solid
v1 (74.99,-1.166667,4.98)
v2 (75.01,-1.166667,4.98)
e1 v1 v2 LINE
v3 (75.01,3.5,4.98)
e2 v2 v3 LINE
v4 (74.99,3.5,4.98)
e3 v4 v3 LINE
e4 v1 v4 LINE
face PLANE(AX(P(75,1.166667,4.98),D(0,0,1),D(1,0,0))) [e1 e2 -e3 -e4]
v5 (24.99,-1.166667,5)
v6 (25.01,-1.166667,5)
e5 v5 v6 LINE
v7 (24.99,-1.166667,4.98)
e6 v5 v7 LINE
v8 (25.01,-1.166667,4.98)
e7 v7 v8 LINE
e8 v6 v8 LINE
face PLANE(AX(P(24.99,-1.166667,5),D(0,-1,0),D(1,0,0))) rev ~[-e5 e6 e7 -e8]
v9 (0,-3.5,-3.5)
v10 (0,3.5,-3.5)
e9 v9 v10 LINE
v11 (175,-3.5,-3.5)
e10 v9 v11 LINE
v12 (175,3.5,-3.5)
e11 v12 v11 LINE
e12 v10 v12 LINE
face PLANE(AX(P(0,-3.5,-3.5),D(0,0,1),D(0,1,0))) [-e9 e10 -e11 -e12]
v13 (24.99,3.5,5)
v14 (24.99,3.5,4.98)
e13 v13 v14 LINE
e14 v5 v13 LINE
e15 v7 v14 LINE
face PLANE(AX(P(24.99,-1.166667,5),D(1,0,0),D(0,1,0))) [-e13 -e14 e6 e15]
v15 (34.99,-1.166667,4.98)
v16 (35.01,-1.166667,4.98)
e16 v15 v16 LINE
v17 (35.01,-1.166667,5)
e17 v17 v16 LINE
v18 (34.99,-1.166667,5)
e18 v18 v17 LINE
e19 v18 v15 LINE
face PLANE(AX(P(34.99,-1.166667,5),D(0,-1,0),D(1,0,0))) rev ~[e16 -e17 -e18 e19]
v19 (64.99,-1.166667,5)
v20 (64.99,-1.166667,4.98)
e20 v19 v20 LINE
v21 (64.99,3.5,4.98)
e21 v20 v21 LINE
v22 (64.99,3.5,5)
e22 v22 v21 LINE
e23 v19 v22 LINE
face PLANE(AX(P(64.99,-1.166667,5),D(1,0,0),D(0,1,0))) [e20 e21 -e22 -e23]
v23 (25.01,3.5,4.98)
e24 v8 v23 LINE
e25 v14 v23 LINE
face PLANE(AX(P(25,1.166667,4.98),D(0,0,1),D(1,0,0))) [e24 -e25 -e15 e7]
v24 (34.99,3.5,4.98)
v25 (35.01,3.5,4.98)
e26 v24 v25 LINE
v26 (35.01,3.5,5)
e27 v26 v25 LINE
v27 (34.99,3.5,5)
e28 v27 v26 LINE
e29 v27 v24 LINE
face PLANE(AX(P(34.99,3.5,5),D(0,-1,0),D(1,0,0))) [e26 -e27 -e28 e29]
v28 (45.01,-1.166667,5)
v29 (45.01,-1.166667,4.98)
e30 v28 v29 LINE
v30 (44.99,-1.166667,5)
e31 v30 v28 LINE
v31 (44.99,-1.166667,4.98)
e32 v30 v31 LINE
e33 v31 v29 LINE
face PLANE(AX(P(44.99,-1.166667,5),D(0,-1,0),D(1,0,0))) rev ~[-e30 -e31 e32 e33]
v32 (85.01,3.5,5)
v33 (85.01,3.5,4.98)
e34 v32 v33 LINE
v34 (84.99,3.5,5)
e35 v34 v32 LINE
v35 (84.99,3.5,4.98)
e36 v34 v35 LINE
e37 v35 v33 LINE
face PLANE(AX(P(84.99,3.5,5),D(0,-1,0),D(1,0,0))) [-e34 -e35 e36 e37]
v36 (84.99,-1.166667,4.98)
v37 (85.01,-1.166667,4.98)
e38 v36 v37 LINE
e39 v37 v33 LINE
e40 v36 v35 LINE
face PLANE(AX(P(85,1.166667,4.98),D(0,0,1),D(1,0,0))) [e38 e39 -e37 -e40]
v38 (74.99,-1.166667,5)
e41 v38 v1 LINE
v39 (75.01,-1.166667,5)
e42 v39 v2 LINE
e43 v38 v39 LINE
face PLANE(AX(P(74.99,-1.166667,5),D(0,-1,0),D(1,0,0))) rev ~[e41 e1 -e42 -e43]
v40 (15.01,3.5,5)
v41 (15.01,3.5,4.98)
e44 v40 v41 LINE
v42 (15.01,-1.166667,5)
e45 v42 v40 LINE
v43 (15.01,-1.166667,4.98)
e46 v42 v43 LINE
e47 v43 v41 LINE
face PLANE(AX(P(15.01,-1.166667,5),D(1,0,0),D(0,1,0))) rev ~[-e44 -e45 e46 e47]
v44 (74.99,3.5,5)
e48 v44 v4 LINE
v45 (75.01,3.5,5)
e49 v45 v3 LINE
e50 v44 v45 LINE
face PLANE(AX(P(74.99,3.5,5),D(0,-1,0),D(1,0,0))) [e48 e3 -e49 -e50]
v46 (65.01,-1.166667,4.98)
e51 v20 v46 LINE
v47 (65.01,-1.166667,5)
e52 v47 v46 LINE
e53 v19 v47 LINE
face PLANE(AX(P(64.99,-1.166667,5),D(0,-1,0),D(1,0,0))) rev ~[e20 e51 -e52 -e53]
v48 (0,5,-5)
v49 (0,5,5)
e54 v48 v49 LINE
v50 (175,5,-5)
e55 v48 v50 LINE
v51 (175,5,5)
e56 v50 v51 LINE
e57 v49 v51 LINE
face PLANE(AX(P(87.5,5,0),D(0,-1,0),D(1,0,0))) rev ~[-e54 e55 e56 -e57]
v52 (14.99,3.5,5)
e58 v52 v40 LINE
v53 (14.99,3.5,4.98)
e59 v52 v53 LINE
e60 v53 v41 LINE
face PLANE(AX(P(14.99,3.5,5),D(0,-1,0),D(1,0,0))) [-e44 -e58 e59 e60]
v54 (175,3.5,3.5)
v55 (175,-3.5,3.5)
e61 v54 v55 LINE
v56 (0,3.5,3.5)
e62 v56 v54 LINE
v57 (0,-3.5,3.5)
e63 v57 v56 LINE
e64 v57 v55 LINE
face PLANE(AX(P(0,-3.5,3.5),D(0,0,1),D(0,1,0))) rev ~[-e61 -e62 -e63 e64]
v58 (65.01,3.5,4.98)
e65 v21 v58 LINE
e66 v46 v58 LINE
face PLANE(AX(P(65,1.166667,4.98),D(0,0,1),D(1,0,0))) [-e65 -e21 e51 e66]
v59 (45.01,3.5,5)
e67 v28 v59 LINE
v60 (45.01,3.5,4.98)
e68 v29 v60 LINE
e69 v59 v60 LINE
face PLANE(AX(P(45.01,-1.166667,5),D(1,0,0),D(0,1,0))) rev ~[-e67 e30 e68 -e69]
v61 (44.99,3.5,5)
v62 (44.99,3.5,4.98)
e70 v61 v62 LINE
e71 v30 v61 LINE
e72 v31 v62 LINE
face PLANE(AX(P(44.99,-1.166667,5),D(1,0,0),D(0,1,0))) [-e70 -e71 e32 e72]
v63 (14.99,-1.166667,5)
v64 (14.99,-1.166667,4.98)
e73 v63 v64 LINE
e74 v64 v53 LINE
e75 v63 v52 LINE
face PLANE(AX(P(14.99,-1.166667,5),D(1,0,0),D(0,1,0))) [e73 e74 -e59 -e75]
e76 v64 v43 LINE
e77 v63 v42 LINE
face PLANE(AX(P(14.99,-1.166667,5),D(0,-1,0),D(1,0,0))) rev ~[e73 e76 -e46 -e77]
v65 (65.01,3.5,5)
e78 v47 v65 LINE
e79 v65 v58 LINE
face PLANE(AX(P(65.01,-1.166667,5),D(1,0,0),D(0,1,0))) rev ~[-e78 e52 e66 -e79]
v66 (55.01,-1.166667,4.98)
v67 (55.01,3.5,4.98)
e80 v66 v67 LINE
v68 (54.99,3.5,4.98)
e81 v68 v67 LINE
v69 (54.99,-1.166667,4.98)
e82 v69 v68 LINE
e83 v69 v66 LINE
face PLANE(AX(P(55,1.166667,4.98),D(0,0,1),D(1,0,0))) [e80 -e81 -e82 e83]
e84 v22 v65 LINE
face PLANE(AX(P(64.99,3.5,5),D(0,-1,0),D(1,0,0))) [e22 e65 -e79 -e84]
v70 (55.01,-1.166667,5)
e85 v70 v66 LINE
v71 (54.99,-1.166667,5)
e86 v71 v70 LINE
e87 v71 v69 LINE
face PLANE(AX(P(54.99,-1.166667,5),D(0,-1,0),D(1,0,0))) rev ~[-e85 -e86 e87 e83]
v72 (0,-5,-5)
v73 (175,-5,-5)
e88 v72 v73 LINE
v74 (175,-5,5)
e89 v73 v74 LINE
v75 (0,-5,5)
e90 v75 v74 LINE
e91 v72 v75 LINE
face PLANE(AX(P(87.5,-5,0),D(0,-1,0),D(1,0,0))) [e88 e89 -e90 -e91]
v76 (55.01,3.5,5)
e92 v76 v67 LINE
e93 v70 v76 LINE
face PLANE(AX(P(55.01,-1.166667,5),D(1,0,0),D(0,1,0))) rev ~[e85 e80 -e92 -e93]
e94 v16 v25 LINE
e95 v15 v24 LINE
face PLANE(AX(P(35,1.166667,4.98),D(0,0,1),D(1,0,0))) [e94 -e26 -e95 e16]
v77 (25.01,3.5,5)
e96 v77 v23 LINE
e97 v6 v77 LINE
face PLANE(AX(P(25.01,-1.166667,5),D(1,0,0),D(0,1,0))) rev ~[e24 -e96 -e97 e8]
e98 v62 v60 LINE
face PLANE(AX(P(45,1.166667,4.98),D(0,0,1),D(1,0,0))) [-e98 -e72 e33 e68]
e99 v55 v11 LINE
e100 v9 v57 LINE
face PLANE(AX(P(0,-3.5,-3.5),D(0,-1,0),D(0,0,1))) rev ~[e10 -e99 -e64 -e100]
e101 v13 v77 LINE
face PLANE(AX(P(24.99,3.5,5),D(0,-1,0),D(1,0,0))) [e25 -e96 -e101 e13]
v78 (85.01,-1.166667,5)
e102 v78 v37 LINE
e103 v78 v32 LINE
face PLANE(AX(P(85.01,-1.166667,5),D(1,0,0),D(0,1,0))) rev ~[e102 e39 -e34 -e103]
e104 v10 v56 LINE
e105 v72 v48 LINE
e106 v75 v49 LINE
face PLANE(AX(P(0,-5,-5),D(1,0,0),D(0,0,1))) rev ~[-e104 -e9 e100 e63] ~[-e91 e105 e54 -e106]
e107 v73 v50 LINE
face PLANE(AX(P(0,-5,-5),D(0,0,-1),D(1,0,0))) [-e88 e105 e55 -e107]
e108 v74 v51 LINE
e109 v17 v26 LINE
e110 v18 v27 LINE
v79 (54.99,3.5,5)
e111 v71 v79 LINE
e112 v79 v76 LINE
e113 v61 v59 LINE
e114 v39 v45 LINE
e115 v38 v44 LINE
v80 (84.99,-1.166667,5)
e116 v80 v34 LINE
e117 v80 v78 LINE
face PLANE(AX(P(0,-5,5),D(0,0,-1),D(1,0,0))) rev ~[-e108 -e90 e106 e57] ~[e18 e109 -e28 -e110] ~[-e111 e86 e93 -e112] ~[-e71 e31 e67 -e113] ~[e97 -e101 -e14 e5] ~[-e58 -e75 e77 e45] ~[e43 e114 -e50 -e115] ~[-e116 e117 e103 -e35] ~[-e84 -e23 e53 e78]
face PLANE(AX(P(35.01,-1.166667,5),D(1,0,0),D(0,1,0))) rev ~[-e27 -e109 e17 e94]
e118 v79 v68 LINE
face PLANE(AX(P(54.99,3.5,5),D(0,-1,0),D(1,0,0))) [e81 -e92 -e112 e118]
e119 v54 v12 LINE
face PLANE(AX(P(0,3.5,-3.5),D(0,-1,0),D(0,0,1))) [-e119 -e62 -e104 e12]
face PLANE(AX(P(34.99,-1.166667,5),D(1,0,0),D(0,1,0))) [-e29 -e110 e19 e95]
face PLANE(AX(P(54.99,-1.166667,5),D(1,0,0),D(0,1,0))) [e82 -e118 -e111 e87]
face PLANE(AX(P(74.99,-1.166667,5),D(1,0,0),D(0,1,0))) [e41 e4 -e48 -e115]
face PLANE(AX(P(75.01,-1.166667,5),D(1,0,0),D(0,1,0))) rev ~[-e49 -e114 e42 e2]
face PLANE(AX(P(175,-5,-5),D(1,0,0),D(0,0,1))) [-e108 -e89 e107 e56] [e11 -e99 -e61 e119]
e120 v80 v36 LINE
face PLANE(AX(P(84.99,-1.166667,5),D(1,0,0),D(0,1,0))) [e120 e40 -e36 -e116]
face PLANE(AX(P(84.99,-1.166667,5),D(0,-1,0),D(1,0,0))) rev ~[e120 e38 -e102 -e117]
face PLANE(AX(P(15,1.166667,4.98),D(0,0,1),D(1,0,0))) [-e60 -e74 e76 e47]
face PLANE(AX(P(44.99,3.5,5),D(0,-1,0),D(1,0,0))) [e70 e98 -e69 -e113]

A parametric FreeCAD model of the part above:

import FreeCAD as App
import Part
import Sketcher
from FreeCAD import Vector


def add_polygon(sketch, points):
    """Adds a closed chain of lines whose ends are joined by coincident constraints."""
    first, n = sketch.GeometryCount, len(points)
    for a, b in zip(points, points[1:] + points[:1]):
        sketch.addGeometry(Part.LineSegment(App.Vector(*a, 0), App.Vector(*b, 0)), False)
    for i in range(n):
        sketch.addConstraint(Sketcher.Constraint("Coincident", first + i, 2, first + (i + 1) % n, 1))

doc = App.newDocument("Part")
params = doc.addObject("Spreadsheet::Sheet", "Params")
for row, (alias, value) in enumerate([
    ("sketch1_width", "175 mm"),
    ("sketch1_height", "10 mm"),
    ("pad1_length", "10 mm"),
    ("sketch2_width", "7 mm"),
    ("sketch3_width", "0.02 mm"),
    ("pocket2_length", "0.02 mm"),
    ("sketch4_width", "0.02 mm"),
    ("pocket3_length", "0.02 mm"),
    ("sketch5_width", "0.02 mm"),
    ("pocket4_length", "0.02 mm"),
    ("sketch6_width", "0.02 mm"),
    ("pocket5_length", "0.02 mm"),
    ("sketch7_width", "0.02 mm"),
    ("pocket6_length", "0.02 mm"),
    ("sketch8_width", "0.02 mm"),
    ("pocket7_length", "0.02 mm"),
    ("sketch9_width", "0.02 mm"),
    ("pocket8_length", "0.02 mm"),
    ("sketch10_width", "0.02 mm"),
    ("pocket9_length", "0.02 mm"),
], start=1):
    params.set(f"A{row}", alias)
    params.set(f"B{row}", "=" + value)
    params.setAlias(f"B{row}", alias)

body = doc.addObject("PartDesign::Body", "Body")

sketch1 = doc.addObject("Sketcher::SketchObject", "Sketch")
body.addObject(sketch1)
sketch1.AttachmentSupport = (doc.XZ_Plane, [""])
sketch1.MapMode = "FlatFace"
sketch1.AttachmentOffset = App.Placement(Vector(0, 0, 5), App.Rotation())
add_polygon(sketch1, [(0, 5), (0, -5), (175, -5), (175, 5)])
sketch1.addConstraint([
    Sketcher.Constraint("Vertical", 0),
    Sketcher.Constraint("Horizontal", 1),
    Sketcher.Constraint("Vertical", 2),
    Sketcher.Constraint("Horizontal", 3),
    Sketcher.Constraint("Symmetric", 0, 2, 3, 2, -1, 1),
    Sketcher.Constraint("DistanceX", 1, 1, 1, 2, 175.0),
    Sketcher.Constraint("DistanceY", 0, 2, 0, 1, 10.0),
])
sketch1.setExpression("Constraints[9]", "Params.sketch1_width")
sketch1.setExpression("Constraints[10]", "Params.sketch1_height")
pad1 = doc.addObject("PartDesign::Pad", "Pad")
body.addObject(pad1)
pad1.Profile = sketch1
pad1.setExpression("Length", "Params.pad1_length")
pad1.Reversed = True

sketch2 = doc.addObject("Sketcher::SketchObject", "Sketch001")
body.addObject(sketch2)
sketch2.AttachmentSupport = (doc.YZ_Plane, [""])
sketch2.MapMode = "FlatFace"
add_polygon(sketch2, [(4, -4), (-4, -4), (-4, 4), (4, 4)])
sketch2.addConstraint([
    Sketcher.Constraint("Horizontal", 0),
    Sketcher.Constraint("Vertical", 1),
    Sketcher.Constraint("Horizontal", 2),
    Sketcher.Constraint("Vertical", 3),
    Sketcher.Constraint("Symmetric", 0, 2, 2, 2, -1, 1),
    Sketcher.Constraint("Equal", 2, 1),
    Sketcher.Constraint("DistanceX", 0, 2, 0, 1, 7.0),
])
sketch2.setExpression("Constraints[10]", "Params.sketch2_width")
pocket1 = doc.addObject("PartDesign::Pocket", "Pocket")
body.addObject(pocket1)
pocket1.Profile = sketch2
pocket1.Type = "ThroughAll"
pocket1.Reversed = True

sketch3 = doc.addObject("Sketcher::SketchObject", "Sketch002")
body.addObject(sketch3)
sketch3.AttachmentSupport = (doc.XY_Plane, [""])
sketch3.MapMode = "FlatFace"
sketch3.AttachmentOffset = App.Placement(Vector(0, 0, 5), App.Rotation())
add_polygon(sketch3, [(24.99, 3.5), (24.99, -1.167), (25.01, -1.167), (25.01, 3.5)])
sketch3.addConstraint([
    Sketcher.Constraint("Vertical", 0),
    Sketcher.Constraint("Horizontal", 1),
    Sketcher.Constraint("Vertical", 2),
    Sketcher.Constraint("Horizontal", 3),
    Sketcher.Constraint("DistanceX", 1, 1, 1, 2, 0.02),
    Sketcher.Constraint("DistanceY", -1, 1, 2, 2, 3.5),
    Sketcher.Constraint("DistanceX", -1, 1, 0, 2, 24.99),
    Sketcher.Constraint("DistanceY", 0, 2, 0, 1, 4.666667),
])
sketch3.setExpression("Constraints[8]", "Params.sketch3_width")
pocket2 = doc.addObject("PartDesign::Pocket", "Pocket001")
body.addObject(pocket2)
pocket2.Profile = sketch3
pocket2.setExpression("Length", "Params.pocket2_length")

sketch4 = doc.addObject("Sketcher::SketchObject", "Sketch003")
body.addObject(sketch4)
sketch4.AttachmentSupport = (doc.XY_Plane, [""])
sketch4.MapMode = "FlatFace"
sketch4.AttachmentOffset = App.Placement(Vector(0, 0, 5), App.Rotation())
add_polygon(sketch4, [(34.99, 3.5), (34.99, -1.167), (35.01, -1.167), (35.01, 3.5)])
sketch4.addConstraint([
    Sketcher.Constraint("Vertical", 0),
    Sketcher.Constraint("Horizontal", 1),
    Sketcher.Constraint("Vertical", 2),
    Sketcher.Constraint("Horizontal", 3),
    Sketcher.Constraint("DistanceX", 1, 1, 1, 2, 0.02),
    Sketcher.Constraint("DistanceY", -1, 1, 2, 2, 3.5),
    Sketcher.Constraint("DistanceX", -1, 1, 0, 2, 34.99),
    Sketcher.Constraint("DistanceY", 0, 2, 0, 1, 4.666667),
])
sketch4.setExpression("Constraints[8]", "Params.sketch4_width")
pocket3 = doc.addObject("PartDesign::Pocket", "Pocket002")
body.addObject(pocket3)
pocket3.Profile = sketch4
pocket3.setExpression("Length", "Params.pocket3_length")

sketch5 = doc.addObject("Sketcher::SketchObject", "Sketch004")
body.addObject(sketch5)
sketch5.AttachmentSupport = (doc.XY_Plane, [""])
sketch5.MapMode = "FlatFace"
sketch5.AttachmentOffset = App.Placement(Vector(0, 0, 5), App.Rotation())
add_polygon(sketch5, [(44.99, 3.5), (44.99, -1.167), (45.01, -1.167), (45.01, 3.5)])
sketch5.addConstraint([
    Sketcher.Constraint("Vertical", 0),
    Sketcher.Constraint("Horizontal", 1),
    Sketcher.Constraint("Vertical", 2),
    Sketcher.Constraint("Horizontal", 3),
    Sketcher.Constraint("DistanceX", 1, 1, 1, 2, 0.02),
    Sketcher.Constraint("DistanceY", -1, 1, 2, 2, 3.5),
    Sketcher.Constraint("DistanceX", -1, 1, 0, 2, 44.99),
    Sketcher.Constraint("DistanceY", 0, 2, 0, 1, 4.666667),
])
sketch5.setExpression("Constraints[8]", "Params.sketch5_width")
pocket4 = doc.addObject("PartDesign::Pocket", "Pocket003")
body.addObject(pocket4)
pocket4.Profile = sketch5
pocket4.setExpression("Length", "Params.pocket4_length")

sketch6 = doc.addObject("Sketcher::SketchObject", "Sketch005")
body.addObject(sketch6)
sketch6.AttachmentSupport = (doc.XY_Plane, [""])
sketch6.MapMode = "FlatFace"
sketch6.AttachmentOffset = App.Placement(Vector(0, 0, 5), App.Rotation())
add_polygon(sketch6, [(54.99, 3.5), (54.99, -1.167), (55.01, -1.167), (55.01, 3.5)])
sketch6.addConstraint([
    Sketcher.Constraint("Vertical", 0),
    Sketcher.Constraint("Horizontal", 1),
    Sketcher.Constraint("Vertical", 2),
    Sketcher.Constraint("Horizontal", 3),
    Sketcher.Constraint("DistanceX", 1, 1, 1, 2, 0.02),
    Sketcher.Constraint("DistanceY", -1, 1, 2, 2, 3.5),
    Sketcher.Constraint("DistanceX", -1, 1, 0, 2, 54.99),
    Sketcher.Constraint("DistanceY", 0, 2, 0, 1, 4.666667),
])
sketch6.setExpression("Constraints[8]", "Params.sketch6_width")
pocket5 = doc.addObject("PartDesign::Pocket", "Pocket004")
body.addObject(pocket5)
pocket5.Profile = sketch6
pocket5.setExpression("Length", "Params.pocket5_length")

sketch7 = doc.addObject("Sketcher::SketchObject", "Sketch006")
body.addObject(sketch7)
sketch7.AttachmentSupport = (doc.XY_Plane, [""])
sketch7.MapMode = "FlatFace"
sketch7.AttachmentOffset = App.Placement(Vector(0, 0, 5), App.Rotation())
add_polygon(sketch7, [(64.99, 3.5), (64.99, -1.167), (65.01, -1.167), (65.01, 3.5)])
sketch7.addConstraint([
    Sketcher.Constraint("Vertical", 0),
    Sketcher.Constraint("Horizontal", 1),
    Sketcher.Constraint("Vertical", 2),
    Sketcher.Constraint("Horizontal", 3),
    Sketcher.Constraint("DistanceX", 1, 1, 1, 2, 0.02),
    Sketcher.Constraint("DistanceY", -1, 1, 2, 2, 3.5),
    Sketcher.Constraint("DistanceX", -1, 1, 0, 2, 64.99),
    Sketcher.Constraint("DistanceY", 0, 2, 0, 1, 4.666667),
])
sketch7.setExpression("Constraints[8]", "Params.sketch7_width")
pocket6 = doc.addObject("PartDesign::Pocket", "Pocket005")
body.addObject(pocket6)
pocket6.Profile = sketch7
pocket6.setExpression("Length", "Params.pocket6_length")

sketch8 = doc.addObject("Sketcher::SketchObject", "Sketch007")
body.addObject(sketch8)
sketch8.AttachmentSupport = (doc.XY_Plane, [""])
sketch8.MapMode = "FlatFace"
sketch8.AttachmentOffset = App.Placement(Vector(0, 0, 5), App.Rotation())
add_polygon(sketch8, [(74.99, 3.5), (74.99, -1.167), (75.01, -1.167), (75.01, 3.5)])
sketch8.addConstraint([
    Sketcher.Constraint("Vertical", 0),
    Sketcher.Constraint("Horizontal", 1),
    Sketcher.Constraint("Vertical", 2),
    Sketcher.Constraint("Horizontal", 3),
    Sketcher.Constraint("DistanceX", 1, 1, 1, 2, 0.02),
    Sketcher.Constraint("DistanceY", -1, 1, 2, 2, 3.5),
    Sketcher.Constraint("DistanceX", -1, 1, 0, 2, 74.99),
    Sketcher.Constraint("DistanceY", 0, 2, 0, 1, 4.666667),
])
sketch8.setExpression("Constraints[8]", "Params.sketch8_width")
pocket7 = doc.addObject("PartDesign::Pocket", "Pocket006")
body.addObject(pocket7)
pocket7.Profile = sketch8
pocket7.setExpression("Length", "Params.pocket7_length")

sketch9 = doc.addObject("Sketcher::SketchObject", "Sketch008")
body.addObject(sketch9)
sketch9.AttachmentSupport = (doc.XY_Plane, [""])
sketch9.MapMode = "FlatFace"
sketch9.AttachmentOffset = App.Placement(Vector(0, 0, 5), App.Rotation())
add_polygon(sketch9, [(84.99, 3.5), (84.99, -1.167), (85.01, -1.167), (85.01, 3.5)])
sketch9.addConstraint([
    Sketcher.Constraint("Vertical", 0),
    Sketcher.Constraint("Horizontal", 1),
    Sketcher.Constraint("Vertical", 2),
    Sketcher.Constraint("Horizontal", 3),
    Sketcher.Constraint("DistanceX", 1, 1, 1, 2, 0.02),
    Sketcher.Constraint("DistanceY", -1, 1, 2, 2, 3.5),
    Sketcher.Constraint("DistanceX", -1, 1, 0, 2, 84.99),
    Sketcher.Constraint("DistanceY", 0, 2, 0, 1, 4.666667),
])
sketch9.setExpression("Constraints[8]", "Params.sketch9_width")
pocket8 = doc.addObject("PartDesign::Pocket", "Pocket007")
body.addObject(pocket8)
pocket8.Profile = sketch9
pocket8.setExpression("Length", "Params.pocket8_length")

sketch10 = doc.addObject("Sketcher::SketchObject", "Sketch009")
body.addObject(sketch10)
sketch10.AttachmentSupport = (doc.XY_Plane, [""])
sketch10.MapMode = "FlatFace"
sketch10.AttachmentOffset = App.Placement(Vector(0, 0, 5), App.Rotation())
add_polygon(sketch10, [(14.99, 3.5), (14.99, -1.167), (15.01, -1.167), (15.01, 3.5)])
sketch10.addConstraint([
    Sketcher.Constraint("Vertical", 0),
    Sketcher.Constraint("Horizontal", 1),
    Sketcher.Constraint("Vertical", 2),
    Sketcher.Constraint("Horizontal", 3),
    Sketcher.Constraint("DistanceX", 1, 1, 1, 2, 0.02),
    Sketcher.Constraint("DistanceY", -1, 1, 2, 2, 3.5),
    Sketcher.Constraint("DistanceX", -1, 1, 0, 2, 14.99),
    Sketcher.Constraint("DistanceY", 0, 2, 0, 1, 4.666667),
])
sketch10.setExpression("Constraints[8]", "Params.sketch10_width")
pocket9 = doc.addObject("PartDesign::Pocket", "Pocket008")
body.addObject(pocket9)
pocket9.Profile = sketch10
pocket9.setExpression("Length", "Params.pocket9_length")

doc.recompute()
